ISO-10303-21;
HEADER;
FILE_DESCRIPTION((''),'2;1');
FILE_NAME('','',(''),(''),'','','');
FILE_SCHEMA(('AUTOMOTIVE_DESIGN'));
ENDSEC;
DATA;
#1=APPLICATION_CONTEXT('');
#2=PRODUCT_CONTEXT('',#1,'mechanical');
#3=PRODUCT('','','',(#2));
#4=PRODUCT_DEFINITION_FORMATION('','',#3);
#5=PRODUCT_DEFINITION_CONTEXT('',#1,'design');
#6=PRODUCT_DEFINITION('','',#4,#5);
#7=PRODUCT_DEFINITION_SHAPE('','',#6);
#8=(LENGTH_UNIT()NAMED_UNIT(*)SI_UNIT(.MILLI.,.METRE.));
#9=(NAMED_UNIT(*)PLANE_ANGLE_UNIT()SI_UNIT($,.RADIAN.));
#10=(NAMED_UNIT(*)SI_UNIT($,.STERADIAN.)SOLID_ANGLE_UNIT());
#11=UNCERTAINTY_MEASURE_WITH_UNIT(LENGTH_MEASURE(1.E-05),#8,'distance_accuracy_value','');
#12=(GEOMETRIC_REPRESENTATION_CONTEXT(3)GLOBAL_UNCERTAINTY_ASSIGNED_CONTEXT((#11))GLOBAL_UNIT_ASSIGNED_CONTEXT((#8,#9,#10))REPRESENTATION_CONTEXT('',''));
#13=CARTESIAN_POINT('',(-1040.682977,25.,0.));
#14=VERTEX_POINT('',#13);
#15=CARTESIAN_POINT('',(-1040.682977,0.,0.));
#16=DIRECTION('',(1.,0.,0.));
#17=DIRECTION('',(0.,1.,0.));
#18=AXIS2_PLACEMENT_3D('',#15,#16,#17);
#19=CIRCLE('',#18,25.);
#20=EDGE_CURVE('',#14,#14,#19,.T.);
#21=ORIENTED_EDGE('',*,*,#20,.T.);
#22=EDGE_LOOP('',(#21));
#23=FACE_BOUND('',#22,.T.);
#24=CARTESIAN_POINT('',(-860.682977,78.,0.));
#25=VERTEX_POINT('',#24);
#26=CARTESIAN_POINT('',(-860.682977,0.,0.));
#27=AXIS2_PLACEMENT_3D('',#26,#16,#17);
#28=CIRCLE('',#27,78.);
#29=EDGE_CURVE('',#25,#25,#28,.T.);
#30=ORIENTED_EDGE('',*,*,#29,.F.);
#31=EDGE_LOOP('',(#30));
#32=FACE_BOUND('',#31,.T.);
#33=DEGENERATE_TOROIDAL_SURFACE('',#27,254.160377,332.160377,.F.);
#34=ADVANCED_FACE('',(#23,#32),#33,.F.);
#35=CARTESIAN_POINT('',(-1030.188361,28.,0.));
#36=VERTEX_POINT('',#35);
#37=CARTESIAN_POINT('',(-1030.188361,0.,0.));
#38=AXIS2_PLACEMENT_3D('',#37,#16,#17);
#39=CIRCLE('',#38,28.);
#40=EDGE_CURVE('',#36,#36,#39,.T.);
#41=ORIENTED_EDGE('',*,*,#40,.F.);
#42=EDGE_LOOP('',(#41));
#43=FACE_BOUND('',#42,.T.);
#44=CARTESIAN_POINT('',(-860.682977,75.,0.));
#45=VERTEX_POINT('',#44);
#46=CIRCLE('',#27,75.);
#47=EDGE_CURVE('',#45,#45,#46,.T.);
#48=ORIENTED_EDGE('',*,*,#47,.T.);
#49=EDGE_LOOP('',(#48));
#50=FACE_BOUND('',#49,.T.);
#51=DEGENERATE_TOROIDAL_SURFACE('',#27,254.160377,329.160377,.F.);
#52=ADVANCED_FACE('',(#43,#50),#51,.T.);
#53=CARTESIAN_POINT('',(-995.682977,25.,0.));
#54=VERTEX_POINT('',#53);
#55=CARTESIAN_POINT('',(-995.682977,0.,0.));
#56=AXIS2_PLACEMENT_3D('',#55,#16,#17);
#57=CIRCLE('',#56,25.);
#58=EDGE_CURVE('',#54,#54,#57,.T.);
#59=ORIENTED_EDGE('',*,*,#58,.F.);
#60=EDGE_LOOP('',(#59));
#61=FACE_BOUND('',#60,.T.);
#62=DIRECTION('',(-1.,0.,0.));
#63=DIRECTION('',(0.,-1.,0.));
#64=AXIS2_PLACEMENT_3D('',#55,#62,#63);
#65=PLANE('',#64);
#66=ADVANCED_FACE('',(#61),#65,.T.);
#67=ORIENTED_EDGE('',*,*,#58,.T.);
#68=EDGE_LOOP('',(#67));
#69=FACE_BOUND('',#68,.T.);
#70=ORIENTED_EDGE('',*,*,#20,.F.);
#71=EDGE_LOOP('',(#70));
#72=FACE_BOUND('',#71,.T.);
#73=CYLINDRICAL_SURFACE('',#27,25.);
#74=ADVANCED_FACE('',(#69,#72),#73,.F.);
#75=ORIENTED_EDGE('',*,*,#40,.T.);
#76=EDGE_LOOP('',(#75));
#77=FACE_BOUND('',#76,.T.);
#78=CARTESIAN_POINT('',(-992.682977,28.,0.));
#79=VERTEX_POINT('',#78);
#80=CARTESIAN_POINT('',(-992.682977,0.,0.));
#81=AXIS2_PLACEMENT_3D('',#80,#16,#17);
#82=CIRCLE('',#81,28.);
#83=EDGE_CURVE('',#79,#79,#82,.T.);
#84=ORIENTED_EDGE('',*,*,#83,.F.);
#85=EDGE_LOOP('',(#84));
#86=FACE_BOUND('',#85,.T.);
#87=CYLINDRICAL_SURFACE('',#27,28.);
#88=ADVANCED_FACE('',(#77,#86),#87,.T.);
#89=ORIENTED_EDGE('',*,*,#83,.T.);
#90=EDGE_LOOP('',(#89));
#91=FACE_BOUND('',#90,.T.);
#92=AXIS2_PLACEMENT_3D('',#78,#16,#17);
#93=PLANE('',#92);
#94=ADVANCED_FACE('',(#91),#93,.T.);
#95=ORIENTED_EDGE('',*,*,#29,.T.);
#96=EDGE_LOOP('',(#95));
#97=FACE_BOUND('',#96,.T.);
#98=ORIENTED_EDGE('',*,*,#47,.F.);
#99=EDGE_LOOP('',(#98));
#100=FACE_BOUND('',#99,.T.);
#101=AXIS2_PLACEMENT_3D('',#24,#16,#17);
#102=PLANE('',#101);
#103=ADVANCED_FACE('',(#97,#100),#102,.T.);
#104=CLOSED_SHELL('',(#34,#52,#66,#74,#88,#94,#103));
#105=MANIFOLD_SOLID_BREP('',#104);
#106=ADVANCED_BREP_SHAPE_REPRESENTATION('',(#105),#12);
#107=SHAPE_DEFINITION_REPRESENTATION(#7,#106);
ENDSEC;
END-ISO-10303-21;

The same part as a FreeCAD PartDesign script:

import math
import FreeCAD as App
import Part
import Sketcher

V = App.Vector

doc = App.newDocument("Part")
params = doc.addObject("Spreadsheet::Sheet", "Params")
for row, (alias, value) in enumerate([
    ("sketch1_width", "45 mm"),
    ("sketch1_width2", "3 mm"),
    ("sketch1_height", "25 mm"),
    ("sketch1_height2", "28 mm"),
    ("revolution_angle", "360 deg"),
], start=1):
    params.set(f"A{row}", alias)
    params.set(f"B{row}", "=" + value)
    params.setAlias(f"B{row}", alias)

body = doc.addObject("PartDesign::Body", "Body")

sketch1 = doc.addObject("Sketcher::SketchObject", "Sketch")
body.addObject(sketch1)
sketch1.AttachmentSupport = (doc.XY_Plane, [""])
sketch1.MapMode = "FlatFace"
sketch1.addGeometry([
    Part.LineSegment(V(-860.7, 75, 0), V(-860.7, 78, 0)),
    Part.ArcOfCircle(Part.Circle(V(-860.7, -254.2, 0), V(0, 0, 1), 332.2), math.radians(90), math.radians(123)),
    Part.LineSegment(V(-1040.7, 25, 0), V(-995.7, 25, 0)),
    Part.LineSegment(V(-995.7, 25, 0), V(-995.7, 0, 0)),
    Part.LineSegment(V(-995.7, 0, 0), V(-992.7, 0, 0)),
    Part.LineSegment(V(-992.7, 0, 0), V(-992.7, 28, 0)),
    Part.LineSegment(V(-992.7, 28, 0), V(-1030.2, 28, 0)),
    Part.ArcOfCircle(Part.Circle(V(-860.7, -254.2, 0), V(0, 0, 1), 329.2), math.radians(90), math.radians(121)),
], False)
sketch1.addConstraint([
    Sketcher.Constraint("Coincident", 0, 2, 1, 1),
    Sketcher.Constraint("Coincident", 1, 2, 2, 1),
    Sketcher.Constraint("Coincident", 2, 2, 3, 1),
    Sketcher.Constraint("Coincident", 3, 2, 4, 1),
    Sketcher.Constraint("Coincident", 4, 2, 5, 1),
    Sketcher.Constraint("Coincident", 5, 2, 6, 1),
    Sketcher.Constraint("Coincident", 6, 2, 7, 2),
    Sketcher.Constraint("Coincident", 7, 1, 0, 1),
    Sketcher.Constraint("Vertical", 0),
    Sketcher.Constraint("Horizontal", 2),
    Sketcher.Constraint("Vertical", 3),
    Sketcher.Constraint("Horizontal", 4),
    Sketcher.Constraint("Vertical", 5),
    Sketcher.Constraint("Horizontal", 6),
    Sketcher.Constraint("Coincident", 7, 3, 1, 3),
    Sketcher.Constraint("PointOnObject", 3, 2, -1),
    Sketcher.Constraint("Vertical", 7, 3, 0, 2),
    Sketcher.Constraint("Equal", 4, 0),
    Sketcher.Constraint("DistanceX", 2, 1, 2, 2, 45.0),
    Sketcher.Constraint("DistanceX", 4, 1, 4, 2, 3.0),
    Sketcher.Constraint("DistanceY", 3, 2, 3, 1, 25.0),
    Sketcher.Constraint("DistanceY", 5, 1, 5, 2, 28.0),
    Sketcher.Constraint("DistanceY", -1, 1, 0, 2, 78.0),
    Sketcher.Constraint("DistanceX", 2, 2, 0, 2, 135.0),
    Sketcher.Constraint("DistanceX", 6, 2, -1, 1, 1030.188361),
])
sketch1.setExpression("Constraints[18]", "Params.sketch1_width")
sketch1.setExpression("Constraints[19]", "Params.sketch1_width2")
sketch1.setExpression("Constraints[20]", "Params.sketch1_height")
sketch1.setExpression("Constraints[21]", "Params.sketch1_height2")
revolution = doc.addObject("PartDesign::Revolution", "Revolution")
body.addObject(revolution)
revolution.Profile = sketch1
revolution.ReferenceAxis = (sketch1, ["H_Axis"])
revolution.setExpression("Angle", "Params.revolution_angle")

doc.recompute()
